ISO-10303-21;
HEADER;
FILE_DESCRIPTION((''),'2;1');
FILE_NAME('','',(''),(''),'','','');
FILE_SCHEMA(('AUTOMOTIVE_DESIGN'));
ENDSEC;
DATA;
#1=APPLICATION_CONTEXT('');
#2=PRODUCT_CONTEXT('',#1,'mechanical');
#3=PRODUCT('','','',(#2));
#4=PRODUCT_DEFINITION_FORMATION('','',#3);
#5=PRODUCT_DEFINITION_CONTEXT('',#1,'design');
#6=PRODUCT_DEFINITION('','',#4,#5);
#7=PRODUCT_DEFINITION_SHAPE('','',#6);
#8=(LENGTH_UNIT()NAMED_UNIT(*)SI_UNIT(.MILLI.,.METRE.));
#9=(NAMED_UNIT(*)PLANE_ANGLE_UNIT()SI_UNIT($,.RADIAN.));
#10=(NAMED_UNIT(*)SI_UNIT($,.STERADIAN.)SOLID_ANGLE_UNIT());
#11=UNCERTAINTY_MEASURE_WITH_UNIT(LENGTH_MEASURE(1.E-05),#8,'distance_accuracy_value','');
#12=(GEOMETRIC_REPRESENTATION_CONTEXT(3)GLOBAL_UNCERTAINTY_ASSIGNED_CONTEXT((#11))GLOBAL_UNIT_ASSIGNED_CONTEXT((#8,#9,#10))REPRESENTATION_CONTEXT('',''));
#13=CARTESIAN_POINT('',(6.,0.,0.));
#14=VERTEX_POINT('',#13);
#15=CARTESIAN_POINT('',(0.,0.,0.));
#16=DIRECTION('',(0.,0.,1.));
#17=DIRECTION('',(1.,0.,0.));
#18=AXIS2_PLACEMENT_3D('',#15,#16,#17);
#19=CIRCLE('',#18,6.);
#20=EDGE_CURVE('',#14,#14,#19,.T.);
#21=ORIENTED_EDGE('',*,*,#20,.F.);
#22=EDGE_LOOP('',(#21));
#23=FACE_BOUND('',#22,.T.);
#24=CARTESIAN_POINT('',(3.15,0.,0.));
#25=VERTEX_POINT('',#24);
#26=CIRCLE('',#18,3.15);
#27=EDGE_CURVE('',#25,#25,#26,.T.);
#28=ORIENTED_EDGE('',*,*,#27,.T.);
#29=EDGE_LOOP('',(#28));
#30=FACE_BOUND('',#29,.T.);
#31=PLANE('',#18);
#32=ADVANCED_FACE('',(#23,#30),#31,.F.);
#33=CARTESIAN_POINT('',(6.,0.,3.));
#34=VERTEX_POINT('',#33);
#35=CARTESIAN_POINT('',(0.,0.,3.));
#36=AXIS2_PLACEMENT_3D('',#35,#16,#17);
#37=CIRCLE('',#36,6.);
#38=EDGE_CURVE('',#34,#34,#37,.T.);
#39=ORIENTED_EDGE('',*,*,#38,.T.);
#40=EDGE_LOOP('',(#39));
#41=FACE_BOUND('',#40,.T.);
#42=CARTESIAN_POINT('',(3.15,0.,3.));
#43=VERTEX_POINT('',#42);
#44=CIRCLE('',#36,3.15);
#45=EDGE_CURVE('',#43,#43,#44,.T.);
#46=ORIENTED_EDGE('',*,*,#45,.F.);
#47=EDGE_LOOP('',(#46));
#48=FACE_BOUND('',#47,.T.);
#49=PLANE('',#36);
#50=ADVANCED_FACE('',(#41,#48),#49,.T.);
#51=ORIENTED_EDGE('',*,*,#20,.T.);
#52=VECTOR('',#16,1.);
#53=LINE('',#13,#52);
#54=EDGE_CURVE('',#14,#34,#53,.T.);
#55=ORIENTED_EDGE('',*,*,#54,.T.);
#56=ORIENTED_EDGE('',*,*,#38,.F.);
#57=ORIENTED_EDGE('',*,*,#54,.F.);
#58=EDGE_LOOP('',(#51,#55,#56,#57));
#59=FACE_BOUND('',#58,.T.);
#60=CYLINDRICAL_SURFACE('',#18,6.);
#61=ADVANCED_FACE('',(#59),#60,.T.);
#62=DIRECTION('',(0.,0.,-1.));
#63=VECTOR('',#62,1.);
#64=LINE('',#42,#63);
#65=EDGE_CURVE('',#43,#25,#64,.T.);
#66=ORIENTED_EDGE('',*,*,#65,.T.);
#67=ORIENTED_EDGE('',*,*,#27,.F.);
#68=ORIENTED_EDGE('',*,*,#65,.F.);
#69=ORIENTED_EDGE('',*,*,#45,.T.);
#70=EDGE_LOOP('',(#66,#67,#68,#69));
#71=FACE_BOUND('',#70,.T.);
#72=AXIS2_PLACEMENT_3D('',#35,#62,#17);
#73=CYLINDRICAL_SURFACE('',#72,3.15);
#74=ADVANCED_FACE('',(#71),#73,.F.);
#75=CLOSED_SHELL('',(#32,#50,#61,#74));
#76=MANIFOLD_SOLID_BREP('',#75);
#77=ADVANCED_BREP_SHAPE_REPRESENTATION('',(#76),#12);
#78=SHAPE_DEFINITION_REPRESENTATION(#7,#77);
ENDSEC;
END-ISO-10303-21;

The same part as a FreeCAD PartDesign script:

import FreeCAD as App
import Part
import Sketcher

V = App.Vector
Q = App.Units.Quantity


def add_polygon(sketch, points):
    """Adds a closed chain of lines whose ends are joined by coincident constraints."""
    first, n = sketch.GeometryCount, len(points)
    for a, b in zip(points, points[1:] + points[:1]):
        sketch.addGeometry(Part.LineSegment(App.Vector(*a, 0), App.Vector(*b, 0)), False)
    for i in range(n):
        sketch.addConstraint(Sketcher.Constraint("Coincident", first + i, 2, first + (i + 1) % n, 1))

doc = App.newDocument("Part")
body = doc.addObject("PartDesign::Body", "Body")

sketch1 = body.newObject("Sketcher::SketchObject", "Sketch")
sketch1.AttachmentSupport = (doc.getObject("XZ_Plane"), [""])
sketch1.MapMode = "FlatFace"
add_polygon(sketch1, [(3.15, 0), (3.15, 3), (6, 3), (6, 0)])
sketch1.addConstraint(Sketcher.Constraint("Vertical", 0))
sketch1.addConstraint(Sketcher.Constraint("Horizontal", 1))
sketch1.addConstraint(Sketcher.Constraint("Vertical", 2))
sketch1.addConstraint(Sketcher.Constraint("Horizontal", 3))
sketch1.addConstraint(Sketcher.Constraint("PointOnObject", 2, 2, -1))
sketch1.addConstraint(Sketcher.Constraint("DistanceY", 0, 1, 0, 2, Q("3 mm")))
sketch1.addConstraint(Sketcher.Constraint("DistanceX", -1, 1, 1, 2, Q("6 mm")))
sketch1.addConstraint(Sketcher.Constraint("DistanceX", 1, 1, 1, 2, Q("2.85 mm")))
revolution = body.newObject("PartDesign::Revolution", "Revolution")
revolution.Profile = sketch1
revolution.ReferenceAxis = (sketch1, ["V_Axis"])
revolution.Angle = 360

doc.recompute()
